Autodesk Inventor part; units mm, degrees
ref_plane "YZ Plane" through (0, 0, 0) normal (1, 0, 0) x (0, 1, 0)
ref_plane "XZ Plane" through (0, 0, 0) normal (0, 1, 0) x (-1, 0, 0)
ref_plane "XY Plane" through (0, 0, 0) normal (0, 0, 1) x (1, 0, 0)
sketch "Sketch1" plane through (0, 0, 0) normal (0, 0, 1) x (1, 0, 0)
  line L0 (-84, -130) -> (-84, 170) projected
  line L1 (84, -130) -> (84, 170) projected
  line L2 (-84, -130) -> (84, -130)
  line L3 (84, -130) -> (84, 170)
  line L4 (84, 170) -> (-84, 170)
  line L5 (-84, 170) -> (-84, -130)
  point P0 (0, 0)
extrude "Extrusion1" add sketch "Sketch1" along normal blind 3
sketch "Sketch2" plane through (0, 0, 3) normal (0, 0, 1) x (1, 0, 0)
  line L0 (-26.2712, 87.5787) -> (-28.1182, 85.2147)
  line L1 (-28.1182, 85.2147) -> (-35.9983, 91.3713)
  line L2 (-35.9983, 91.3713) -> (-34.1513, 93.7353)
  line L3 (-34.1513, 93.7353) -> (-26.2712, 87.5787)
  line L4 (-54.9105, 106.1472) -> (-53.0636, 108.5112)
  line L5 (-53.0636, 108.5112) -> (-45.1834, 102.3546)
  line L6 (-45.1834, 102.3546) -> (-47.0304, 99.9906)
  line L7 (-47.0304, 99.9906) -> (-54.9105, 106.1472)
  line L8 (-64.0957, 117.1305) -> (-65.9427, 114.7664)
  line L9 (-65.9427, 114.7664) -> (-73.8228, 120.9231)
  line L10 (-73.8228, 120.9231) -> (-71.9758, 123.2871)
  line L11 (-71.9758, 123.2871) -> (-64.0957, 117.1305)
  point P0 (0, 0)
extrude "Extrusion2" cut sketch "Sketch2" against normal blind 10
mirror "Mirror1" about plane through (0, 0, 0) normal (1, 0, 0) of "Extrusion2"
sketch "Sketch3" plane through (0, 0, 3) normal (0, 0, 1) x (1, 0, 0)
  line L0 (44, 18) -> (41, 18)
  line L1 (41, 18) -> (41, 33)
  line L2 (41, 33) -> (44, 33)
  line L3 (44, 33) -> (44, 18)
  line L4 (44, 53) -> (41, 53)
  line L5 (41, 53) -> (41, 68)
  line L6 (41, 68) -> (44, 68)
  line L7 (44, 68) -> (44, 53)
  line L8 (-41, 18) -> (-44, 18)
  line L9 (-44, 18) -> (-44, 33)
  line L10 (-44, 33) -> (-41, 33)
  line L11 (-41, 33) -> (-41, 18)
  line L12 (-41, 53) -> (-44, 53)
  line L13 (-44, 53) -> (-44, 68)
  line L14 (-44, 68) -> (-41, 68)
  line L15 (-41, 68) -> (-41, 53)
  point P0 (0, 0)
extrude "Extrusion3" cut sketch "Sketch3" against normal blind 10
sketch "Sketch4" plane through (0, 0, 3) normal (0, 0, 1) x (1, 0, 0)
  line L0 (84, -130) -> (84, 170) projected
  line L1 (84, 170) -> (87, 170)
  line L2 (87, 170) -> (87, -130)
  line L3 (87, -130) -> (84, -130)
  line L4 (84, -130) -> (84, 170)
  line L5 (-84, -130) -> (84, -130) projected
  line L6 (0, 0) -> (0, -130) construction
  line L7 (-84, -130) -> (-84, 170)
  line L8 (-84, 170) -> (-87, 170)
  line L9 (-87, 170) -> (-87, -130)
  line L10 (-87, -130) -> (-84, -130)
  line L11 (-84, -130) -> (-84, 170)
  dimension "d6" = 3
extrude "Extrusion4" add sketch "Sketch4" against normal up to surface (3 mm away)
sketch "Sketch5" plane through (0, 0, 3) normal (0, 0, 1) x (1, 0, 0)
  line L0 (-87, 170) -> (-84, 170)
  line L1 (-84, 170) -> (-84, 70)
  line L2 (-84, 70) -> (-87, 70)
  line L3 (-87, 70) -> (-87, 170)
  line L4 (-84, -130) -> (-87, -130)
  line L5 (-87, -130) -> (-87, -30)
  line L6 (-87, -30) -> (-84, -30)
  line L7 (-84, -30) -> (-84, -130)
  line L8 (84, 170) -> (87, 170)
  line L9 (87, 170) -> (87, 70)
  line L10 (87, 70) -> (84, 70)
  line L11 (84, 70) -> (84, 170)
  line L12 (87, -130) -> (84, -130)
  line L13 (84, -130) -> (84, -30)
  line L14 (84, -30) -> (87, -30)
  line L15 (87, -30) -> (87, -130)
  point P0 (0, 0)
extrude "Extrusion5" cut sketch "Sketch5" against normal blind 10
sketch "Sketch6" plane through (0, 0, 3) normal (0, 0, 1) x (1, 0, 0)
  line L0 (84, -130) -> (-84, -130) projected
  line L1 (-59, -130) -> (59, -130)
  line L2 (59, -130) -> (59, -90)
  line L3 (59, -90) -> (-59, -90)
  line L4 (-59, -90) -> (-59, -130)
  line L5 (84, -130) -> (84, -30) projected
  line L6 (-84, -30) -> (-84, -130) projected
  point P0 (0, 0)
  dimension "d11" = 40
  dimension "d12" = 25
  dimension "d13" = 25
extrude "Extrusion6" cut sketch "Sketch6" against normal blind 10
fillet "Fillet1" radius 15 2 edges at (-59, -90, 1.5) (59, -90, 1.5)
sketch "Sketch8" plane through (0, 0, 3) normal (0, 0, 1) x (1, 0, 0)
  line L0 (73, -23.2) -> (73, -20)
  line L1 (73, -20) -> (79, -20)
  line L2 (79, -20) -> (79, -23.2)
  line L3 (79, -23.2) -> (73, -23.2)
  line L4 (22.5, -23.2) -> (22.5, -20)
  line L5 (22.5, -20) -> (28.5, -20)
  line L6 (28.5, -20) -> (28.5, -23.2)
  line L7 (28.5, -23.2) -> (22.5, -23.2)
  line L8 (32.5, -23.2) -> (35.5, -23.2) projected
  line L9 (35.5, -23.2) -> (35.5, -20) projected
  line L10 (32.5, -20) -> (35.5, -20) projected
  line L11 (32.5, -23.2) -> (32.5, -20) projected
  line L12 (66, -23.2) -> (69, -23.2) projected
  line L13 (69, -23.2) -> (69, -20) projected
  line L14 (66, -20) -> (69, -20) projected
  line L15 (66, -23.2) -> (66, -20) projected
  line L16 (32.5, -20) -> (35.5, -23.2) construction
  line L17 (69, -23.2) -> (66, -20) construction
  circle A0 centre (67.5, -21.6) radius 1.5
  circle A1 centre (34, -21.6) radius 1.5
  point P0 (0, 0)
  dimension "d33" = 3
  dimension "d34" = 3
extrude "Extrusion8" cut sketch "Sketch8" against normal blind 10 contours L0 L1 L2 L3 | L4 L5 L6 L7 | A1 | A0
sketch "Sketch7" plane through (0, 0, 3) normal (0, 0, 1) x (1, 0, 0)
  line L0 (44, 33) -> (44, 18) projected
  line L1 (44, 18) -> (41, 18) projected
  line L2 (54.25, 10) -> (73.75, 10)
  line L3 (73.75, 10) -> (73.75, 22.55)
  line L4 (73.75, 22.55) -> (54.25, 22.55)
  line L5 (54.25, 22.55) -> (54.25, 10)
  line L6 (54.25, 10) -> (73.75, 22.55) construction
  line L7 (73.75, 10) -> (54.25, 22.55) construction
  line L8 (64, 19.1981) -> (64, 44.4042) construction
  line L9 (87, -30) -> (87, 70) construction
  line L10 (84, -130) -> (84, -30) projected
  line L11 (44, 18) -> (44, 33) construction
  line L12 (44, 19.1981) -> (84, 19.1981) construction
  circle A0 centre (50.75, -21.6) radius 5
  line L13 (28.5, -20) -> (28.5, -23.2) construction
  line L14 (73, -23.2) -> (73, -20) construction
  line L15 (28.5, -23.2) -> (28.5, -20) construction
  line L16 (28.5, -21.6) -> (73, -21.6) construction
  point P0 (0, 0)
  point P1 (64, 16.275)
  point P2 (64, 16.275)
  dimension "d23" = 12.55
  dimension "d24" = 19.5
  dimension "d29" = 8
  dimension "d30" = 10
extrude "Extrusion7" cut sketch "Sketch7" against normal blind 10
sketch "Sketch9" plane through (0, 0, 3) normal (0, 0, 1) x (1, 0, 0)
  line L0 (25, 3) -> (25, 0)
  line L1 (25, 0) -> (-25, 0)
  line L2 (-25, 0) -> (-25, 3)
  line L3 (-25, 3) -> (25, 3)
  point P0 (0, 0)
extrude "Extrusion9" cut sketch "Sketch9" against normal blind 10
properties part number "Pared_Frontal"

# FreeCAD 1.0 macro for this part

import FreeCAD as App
import Part
import Sketcher
Q = App.Units.Quantity


def edges_at(feature, points):
    """Names of the edges that pass closest to the given points."""
    edges = feature.Shape.Edges
    near = lambda p: min(range(len(edges)), key=lambda i: edges[i].distToShape(Part.Vertex(*p))[0])
    return sorted({f"Edge{near(p) + 1}" for p in points})


def add_polygon(sketch, points):
    """Adds a closed chain of lines whose ends are joined by coincident constraints."""
    first, n = sketch.GeometryCount, len(points)
    for a, b in zip(points, points[1:] + points[:1]):
        sketch.addGeometry(Part.LineSegment(App.Vector(*a, 0), App.Vector(*b, 0)), False)
    for i in range(n):
        sketch.addConstraint(Sketcher.Constraint("Coincident", first + i, 2, first + (i + 1) % n, 1))

doc = App.newDocument("Part")
body = doc.addObject("PartDesign::Body", "Body")

sketch1 = body.newObject("Sketcher::SketchObject", "Sketch")
sketch1.AttachmentSupport = (doc.getObject("XY_Plane"), [""])
sketch1.MapMode = "FlatFace"
add_polygon(sketch1, [(-84, 170), (-84, -130), (84, -130), (84, 170)])
sketch1.addConstraint([
    Sketcher.Constraint("Vertical", 0),
    Sketcher.Constraint("Horizontal", 1),
    Sketcher.Constraint("Vertical", 2),
    Sketcher.Constraint("Horizontal", 3),
    Sketcher.Constraint("DistanceX", 1, 1, 1, 2, Q("168 mm")),
    Sketcher.Constraint("DistanceY", 0, 2, 0, 1, Q("300 mm")),
    Sketcher.Constraint("DistanceX", 0, 2, -1, 1, Q("84 mm")),
    Sketcher.Constraint("DistanceY", 0, 2, -1, 1, Q("130 mm")),
])
pad1 = body.newObject("PartDesign::Pad", "Pad")
pad1.Profile = sketch1
pad1.Length = 3

sketch2 = body.newObject("Sketcher::SketchObject", "Sketch001")
sketch2.AttachmentSupport = (doc.getObject("XY_Plane"), [""])
sketch2.MapMode = "FlatFace"
sketch2.AttachmentOffset = App.Placement(App.Vector(0, 0, 3), App.Rotation())
add_polygon(sketch2, [(-28.1, 85.2), (-26.3, 87.6), (-34.2, 93.7), (-36, 91.4)])
add_polygon(sketch2, [(-53.1, 108.5), (-54.9, 106.1), (-47, 100), (-45.2, 102.4)])
add_polygon(sketch2, [(-65.9, 114.8), (-64.1, 117.1), (-72, 123.3), (-73.8, 120.9)])
sketch2.addConstraint([
    Sketcher.Constraint("Perpendicular", 0, 1),
    Sketcher.Constraint("Perpendicular", 1, 2),
    Sketcher.Constraint("Perpendicular", 2, 3),
    Sketcher.Constraint("Perpendicular", 3, 4),
    Sketcher.Constraint("Perpendicular", 4, 5),
    Sketcher.Constraint("Perpendicular", 5, 6),
    Sketcher.Constraint("Perpendicular", 6, 7),
    Sketcher.Constraint("Perpendicular", 7, 8),
    Sketcher.Constraint("Perpendicular", 8, 9),
    Sketcher.Constraint("Perpendicular", 9, 10),
    Sketcher.Constraint("Perpendicular", 10, 11),
    Sketcher.Constraint("Equal", 2, 4),
    Sketcher.Constraint("Equal", 3, 5),
    Sketcher.Constraint("Equal", 6, 8),
    Sketcher.Constraint("Equal", 7, 9),
    Sketcher.Constraint("Angle", 0, Q("51.9994 deg")),
    Sketcher.Constraint("Distance", 0, Q("3 mm")),
    Sketcher.Constraint("Distance", 1, Q("10 mm")),
    Sketcher.Constraint("DistanceY", 2, 2, 7, 2, Q("17.14 mm")),
    Sketcher.Constraint("DistanceY", 5, 2, 8, 2, Q("17.14 mm")),
    Sketcher.Constraint("DistanceY", -1, 1, 9, 2, Q("123.287 mm")),
    Sketcher.Constraint("DistanceX", 5, 2, 2, 2, Q("11.032 mm")),
    Sketcher.Constraint("DistanceX", 8, 2, 7, 2, Q("11.032 mm")),
    Sketcher.Constraint("DistanceX", 0, 2, -1, 1, Q("26.2712 mm")),
])
pocket1 = body.newObject("PartDesign::Pocket", "Pocket")
pocket1.Profile = sketch2
pocket1.Length = 10
doc.recompute()

mirrored = body.newObject("PartDesign::Mirrored", "Mirrored")
mirrored.Originals = [pocket1]
mirrored.MirrorPlane = (doc.getObject("YZ_Plane"), [""])
body.Tip = mirrored

sketch3 = body.newObject("Sketcher::SketchObject", "Sketch002")
sketch3.AttachmentSupport = (doc.getObject("XY_Plane"), [""])
sketch3.MapMode = "FlatFace"
sketch3.AttachmentOffset = App.Placement(App.Vector(0, 0, 3), App.Rotation())
add_polygon(sketch3, [(41, 18), (44, 18), (44, 33), (41, 33)])
add_polygon(sketch3, [(41, 53), (44, 53), (44, 68), (41, 68)])
add_polygon(sketch3, [(-44, 18), (-41, 18), (-41, 33), (-44, 33)])
add_polygon(sketch3, [(-44, 53), (-41, 53), (-41, 68), (-44, 68)])
sketch3.addConstraint([
    Sketcher.Constraint("Horizontal", 0),
    Sketcher.Constraint("Vertical", 1),
    Sketcher.Constraint("Horizontal", 2),
    Sketcher.Constraint("Vertical", 3),
    Sketcher.Constraint("Horizontal", 4),
    Sketcher.Constraint("Vertical", 5),
    Sketcher.Constraint("Horizontal", 6),
    Sketcher.Constraint("Vertical", 7),
    Sketcher.Constraint("Horizontal", 8),
    Sketcher.Constraint("Vertical", 9),
    Sketcher.Constraint("Horizontal", 10),
    Sketcher.Constraint("Vertical", 11),
    Sketcher.Constraint("Horizontal", 12),
    Sketcher.Constraint("Vertical", 13),
    Sketcher.Constraint("Horizontal", 14),
    Sketcher.Constraint("Vertical", 15),
    Sketcher.Constraint("Symmetric", 3, 2, 8, 2, -2),
    Sketcher.Constraint("Symmetric", 1, 2, 10, 2, -2),
    Sketcher.Constraint("Symmetric", 7, 2, 12, 2, -2),
    Sketcher.Constraint("Symmetric", 5, 2, 14, 2, -2),
    Sketcher.Constraint("Vertical", 1, 2, 4, 2),
    Sketcher.Constraint("Vertical", 3, 2, 6, 2),
    Sketcher.Constraint("Equal", 3, 5),
    Sketcher.Constraint("DistanceX", 0, 1, 0, 2, Q("3 mm")),
    Sketcher.Constraint("DistanceY", 1, 1, 1, 2, Q("15 mm")),
    Sketcher.Constraint("DistanceX", -1, 1, 0, 2, Q("44 mm")),
    Sketcher.Constraint("DistanceY", -1, 1, 0, 2, Q("18 mm")),
    Sketcher.Constraint("DistanceY", -1, 1, 4, 2, Q("53 mm")),
])
pocket2 = body.newObject("PartDesign::Pocket", "Pocket001")
pocket2.Profile = sketch3
pocket2.Length = 10

sketch4 = body.newObject("Sketcher::SketchObject", "Sketch003")
sketch4.AttachmentSupport = (doc.getObject("XY_Plane"), [""])
sketch4.MapMode = "FlatFace"
sketch4.AttachmentOffset = App.Placement(App.Vector(0, 0, 3), App.Rotation())
add_polygon(sketch4, [(84, 170), (84, -130), (87, -130), (87, 170)])
add_polygon(sketch4, [(-87, -130), (-84, -130), (-84, 170), (-87, 170)])
sketch4.addConstraint([
    Sketcher.Constraint("Vertical", 0),
    Sketcher.Constraint("Horizontal", 1),
    Sketcher.Constraint("Vertical", 2),
    Sketcher.Constraint("Horizontal", 3),
    Sketcher.Constraint("Horizontal", 4),
    Sketcher.Constraint("Vertical", 5),
    Sketcher.Constraint("Horizontal", 6),
    Sketcher.Constraint("Vertical", 7),
    Sketcher.Constraint("Symmetric", 0, 2, 4, 2, -2),
    Sketcher.Constraint("Symmetric", 2, 2, 6, 2, -2),
    Sketcher.Constraint("DistanceX", 1, 1, 1, 2, Q("3 mm")),
    Sketcher.Constraint("DistanceY", 0, 2, 0, 1, Q("300 mm")),
    Sketcher.Constraint("DistanceX", -1, 1, 0, 2, Q("84 mm")),
    Sketcher.Constraint("DistanceY", 0, 2, -1, 1, Q("130 mm")),
])
pad2 = body.newObject("PartDesign::Pad", "Pad001")
pad2.Profile = sketch4
pad2.Length = 3
pad2.Reversed = True

sketch5 = body.newObject("Sketcher::SketchObject", "Sketch004")
sketch5.AttachmentSupport = (doc.getObject("XY_Plane"), [""])
sketch5.MapMode = "FlatFace"
sketch5.AttachmentOffset = App.Placement(App.Vector(0, 0, 3), App.Rotation())
add_polygon(sketch5, [(-84, 170), (-87, 170), (-87, 70), (-84, 70)])
add_polygon(sketch5, [(-87, -130), (-84, -130), (-84, -30), (-87, -30)])
add_polygon(sketch5, [(87, 170), (84, 170), (84, 70), (87, 70)])
add_polygon(sketch5, [(84, -130), (87, -130), (87, -30), (84, -30)])
sketch5.addConstraint([
    Sketcher.Constraint("Horizontal", 0),
    Sketcher.Constraint("Vertical", 1),
    Sketcher.Constraint("Horizontal", 2),
    Sketcher.Constraint("Vertical", 3),
    Sketcher.Constraint("Horizontal", 4),
    Sketcher.Constraint("Vertical", 5),
    Sketcher.Constraint("Horizontal", 6),
    Sketcher.Constraint("Vertical", 7),
    Sketcher.Constraint("Horizontal", 8),
    Sketcher.Constraint("Vertical", 9),
    Sketcher.Constraint("Horizontal", 10),
    Sketcher.Constraint("Vertical", 11),
    Sketcher.Constraint("Horizontal", 12),
    Sketcher.Constraint("Vertical", 13),
    Sketcher.Constraint("Horizontal", 14),
    Sketcher.Constraint("Vertical", 15),
    Sketcher.Constraint("Symmetric", 3, 2, 8, 2, -2),
    Sketcher.Constraint("Symmetric", 1, 2, 10, 2, -2),
    Sketcher.Constraint("Symmetric", 7, 2, 12, 2, -2),
    Sketcher.Constraint("Symmetric", 5, 2, 14, 2, -2),
    Sketcher.Constraint("Vertical", 3, 2, 4, 2),
    Sketcher.Constraint("Vertical", 1, 2, 6, 2),
    Sketcher.Constraint("Equal", 3, 5),
    Sketcher.Constraint("DistanceX", 0, 2, 0, 1, Q("3 mm")),
    Sketcher.Constraint("DistanceY", 1, 2, 1, 1, Q("100 mm")),
    Sketcher.Constraint("DistanceX", 0, 2, -1, 1, Q("87 mm")),
    Sketcher.Constraint("DistanceY", -1, 1, 0, 2, Q("170 mm")),
    Sketcher.Constraint("DistanceY", 4, 2, -1, 1, Q("130 mm")),
])
pocket3 = body.newObject("PartDesign::Pocket", "Pocket002")
pocket3.Profile = sketch5
pocket3.Length = 10

sketch6 = body.newObject("Sketcher::SketchObject", "Sketch005")
sketch6.AttachmentSupport = (doc.getObject("XY_Plane"), [""])
sketch6.MapMode = "FlatFace"
sketch6.AttachmentOffset = App.Placement(App.Vector(0, 0, 3), App.Rotation())
add_polygon(sketch6, [(-59, -130), (59, -130), (59, -90), (-59, -90)])
sketch6.addConstraint([
    Sketcher.Constraint("Horizontal", 0),
    Sketcher.Constraint("Vertical", 1),
    Sketcher.Constraint("Horizontal", 2),
    Sketcher.Constraint("Vertical", 3),
    Sketcher.Constraint("DistanceY", 1, 1, 1, 2, Q("40 mm")),
    Sketcher.Constraint("DistanceX", 0, 1, 0, 2, Q("118 mm")),
    Sketcher.Constraint("DistanceX", -1, 1, 0, 2, Q("59 mm")),
    Sketcher.Constraint("DistanceY", 0, 2, -1, 1, Q("130 mm")),
])
pocket4 = body.newObject("PartDesign::Pocket", "Pocket003")
pocket4.Profile = sketch6
pocket4.Length = 10
doc.recompute()

fillet = body.newObject("PartDesign::Fillet", "Fillet")
fillet.Base = (pocket4, edges_at(pocket4, [(-59, -90, 1.5), (59, -90, 1.5)]))
fillet.Radius = 15

sketch7 = body.newObject("Sketcher::SketchObject", "Sketch006")
sketch7.AttachmentSupport = (doc.getObject("XY_Plane"), [""])
sketch7.MapMode = "FlatFace"
sketch7.AttachmentOffset = App.Placement(App.Vector(0, 0, 3), App.Rotation())
add_polygon(sketch7, [(73, -20), (73, -23.2), (79, -23.2), (79, -20)])
add_polygon(sketch7, [(22.5, -20), (22.5, -23.2), (28.5, -23.2), (28.5, -20)])
sketch7.addGeometry(Part.Circle(App.Vector(34, -21.6, 0), App.Vector(0, 0, 1), 1.5), False)
sketch7.addGeometry(Part.Circle(App.Vector(67.5, -21.6, 0), App.Vector(0, 0, 1), 1.5), False)
sketch7.addConstraint([
    Sketcher.Constraint("Vertical", 0),
    Sketcher.Constraint("Horizontal", 1),
    Sketcher.Constraint("Vertical", 2),
    Sketcher.Constraint("Horizontal", 3),
    Sketcher.Constraint("Vertical", 4),
    Sketcher.Constraint("Horizontal", 5),
    Sketcher.Constraint("Vertical", 6),
    Sketcher.Constraint("Horizontal", 7),
    Sketcher.Constraint("Equal", 8, 9),
    Sketcher.Constraint("Horizontal", 8, 3, 9, 3),
    Sketcher.Constraint("Horizontal", 1, 2, 4, 2),
    Sketcher.Constraint("Horizontal", 3, 2, 6, 2),
    Sketcher.Constraint("Equal", 3, 5),
    Sketcher.Constraint("Diameter", 8, Q("3 mm")),
    Sketcher.Constraint("DistanceX", 1, 1, 1, 2, Q("6 mm")),
    Sketcher.Constraint("DistanceY", 0, 2, 0, 1, Q("3.2 mm")),
    Sketcher.Constraint("DistanceX", -1, 1, 8, 3, Q("34 mm")),
    Sketcher.Constraint("DistanceX", -1, 1, 0, 2, Q("73 mm")),
    Sketcher.Constraint("DistanceY", 2, 2, -1, 1, Q("20 mm")),
    Sketcher.Constraint("DistanceX", 4, 2, 9, 3, Q("45 mm")),
    Sketcher.Constraint("DistanceY", 8, 3, -1, 1, Q("21.6 mm")),
    Sketcher.Constraint("DistanceX", -1, 1, 9, 3, Q("67.5 mm")),
])
pocket5 = body.newObject("PartDesign::Pocket", "Pocket004")
pocket5.Profile = sketch7
pocket5.Length = 10

sketch8 = body.newObject("Sketcher::SketchObject", "Sketch007")
sketch8.AttachmentSupport = (doc.getObject("XY_Plane"), [""])
sketch8.MapMode = "FlatFace"
sketch8.AttachmentOffset = App.Placement(App.Vector(0, 0, 3), App.Rotation())
add_polygon(sketch8, [(54, 23), (54, 10), (74, 10), (74, 23)])
sketch8.addGeometry(Part.Circle(App.Vector(51, -22, 0), App.Vector(0, 0, 1), 5), False)
sketch8.addConstraint([
    Sketcher.Constraint("Vertical", 0),
    Sketcher.Constraint("Horizontal", 1),
    Sketcher.Constraint("Vertical", 2),
    Sketcher.Constraint("Horizontal", 3),
    Sketcher.Constraint("Diameter", 4, Q("10 mm")),
    Sketcher.Constraint("DistanceX", 1, 1, 1, 2, Q("19.5 mm")),
    Sketcher.Constraint("DistanceY", -1, 1, 0, 2, Q("10 mm")),
    Sketcher.Constraint("DistanceY", 0, 2, 0, 1, Q("12.55 mm")),
    Sketcher.Constraint("DistanceX", 4, 3, 1, 2, Q("23 mm")),
    Sketcher.Constraint("DistanceY", 4, 3, -1, 1, Q("21.6 mm")),
    Sketcher.Constraint("DistanceX", -1, 1, 4, 3, Q("50.75 mm")),
])
pocket6 = body.newObject("PartDesign::Pocket", "Pocket005")
pocket6.Profile = sketch8
pocket6.Length = 10

sketch9 = body.newObject("Sketcher::SketchObject", "Sketch008")
sketch9.AttachmentSupport = (doc.getObject("XY_Plane"), [""])
sketch9.MapMode = "FlatFace"
sketch9.AttachmentOffset = App.Placement(App.Vector(0, 0, 3), App.Rotation())
add_polygon(sketch9, [(25, 0), (25, 3), (-25, 3), (-25, 0)])
sketch9.addConstraint([
    Sketcher.Constraint("Vertical", 0),
    Sketcher.Constraint("Horizontal", 1),
    Sketcher.Constraint("Vertical", 2),
    Sketcher.Constraint("Horizontal", 3),
    Sketcher.Constraint("Symmetric", 2, 2, 3, 2, -1, 1),
    Sketcher.Constraint("DistanceX", 1, 2, 1, 1, Q("50 mm")),
    Sketcher.Constraint("DistanceY", 0, 1, 0, 2, Q("3 mm")),
])
pocket7 = body.newObject("PartDesign::Pocket", "Pocket006")
pocket7.Profile = sketch9
pocket7.Length = 10

doc.recompute()
